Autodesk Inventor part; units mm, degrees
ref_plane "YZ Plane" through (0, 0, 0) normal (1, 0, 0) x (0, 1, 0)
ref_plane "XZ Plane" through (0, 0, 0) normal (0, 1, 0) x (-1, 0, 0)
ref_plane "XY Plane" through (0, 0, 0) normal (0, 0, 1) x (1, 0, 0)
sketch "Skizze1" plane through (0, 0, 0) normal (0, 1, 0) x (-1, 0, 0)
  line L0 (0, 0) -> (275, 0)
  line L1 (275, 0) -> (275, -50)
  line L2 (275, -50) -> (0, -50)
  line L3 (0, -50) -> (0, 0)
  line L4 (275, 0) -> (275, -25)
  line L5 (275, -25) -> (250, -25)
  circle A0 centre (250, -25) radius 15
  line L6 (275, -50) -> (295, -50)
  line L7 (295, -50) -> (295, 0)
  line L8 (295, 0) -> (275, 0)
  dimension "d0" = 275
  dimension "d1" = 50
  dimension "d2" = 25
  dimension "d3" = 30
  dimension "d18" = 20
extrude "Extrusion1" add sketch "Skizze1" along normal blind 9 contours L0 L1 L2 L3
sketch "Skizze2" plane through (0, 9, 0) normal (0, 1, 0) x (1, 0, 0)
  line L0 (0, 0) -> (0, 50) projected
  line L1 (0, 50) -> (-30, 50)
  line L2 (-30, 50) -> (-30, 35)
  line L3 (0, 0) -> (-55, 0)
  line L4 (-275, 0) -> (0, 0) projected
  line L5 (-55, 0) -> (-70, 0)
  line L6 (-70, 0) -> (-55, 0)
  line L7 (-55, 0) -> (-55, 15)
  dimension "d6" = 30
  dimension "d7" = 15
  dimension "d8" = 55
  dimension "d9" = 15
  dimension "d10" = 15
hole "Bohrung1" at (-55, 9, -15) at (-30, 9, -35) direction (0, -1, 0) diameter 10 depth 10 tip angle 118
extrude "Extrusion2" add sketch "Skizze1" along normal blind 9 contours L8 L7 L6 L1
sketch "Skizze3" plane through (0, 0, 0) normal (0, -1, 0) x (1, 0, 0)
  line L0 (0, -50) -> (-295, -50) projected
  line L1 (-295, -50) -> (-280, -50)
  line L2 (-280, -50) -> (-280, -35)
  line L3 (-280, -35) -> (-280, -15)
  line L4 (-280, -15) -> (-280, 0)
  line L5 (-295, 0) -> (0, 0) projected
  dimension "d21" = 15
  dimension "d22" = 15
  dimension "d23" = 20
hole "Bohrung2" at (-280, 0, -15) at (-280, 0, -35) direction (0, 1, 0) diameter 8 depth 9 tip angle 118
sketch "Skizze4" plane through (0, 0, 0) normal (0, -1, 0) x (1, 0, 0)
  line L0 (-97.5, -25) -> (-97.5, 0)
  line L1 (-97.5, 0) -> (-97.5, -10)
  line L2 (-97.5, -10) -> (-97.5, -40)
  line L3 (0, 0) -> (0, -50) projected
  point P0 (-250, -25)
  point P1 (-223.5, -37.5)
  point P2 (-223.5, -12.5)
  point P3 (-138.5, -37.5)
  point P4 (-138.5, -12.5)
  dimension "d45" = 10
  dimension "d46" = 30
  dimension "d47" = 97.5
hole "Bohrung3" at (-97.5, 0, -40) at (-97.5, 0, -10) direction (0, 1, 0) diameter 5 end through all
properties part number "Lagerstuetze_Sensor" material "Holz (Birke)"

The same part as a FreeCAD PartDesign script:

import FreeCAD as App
import Part
import Sketcher
Q = App.Units.Quantity


def add_polygon(sketch, points):
    """Adds a closed chain of lines whose ends are joined by coincident constraints."""
    first, n = sketch.GeometryCount, len(points)
    for a, b in zip(points, points[1:] + points[:1]):
        sketch.addGeometry(Part.LineSegment(App.Vector(*a, 0), App.Vector(*b, 0)), False)
    for i in range(n):
        sketch.addConstraint(Sketcher.Constraint("Coincident", first + i, 2, first + (i + 1) % n, 1))

doc = App.newDocument("Part")
body = doc.addObject("PartDesign::Body", "Body")

# Sketch on XZ plane
sketch1 = body.newObject("Sketcher::SketchObject", "Sketch")
sketch1.AttachmentSupport = (doc.getObject("XZ_Plane"), [""])
sketch1.MapMode = "FlatFace"
add_polygon(sketch1, [(-275, 0), (0, 0), (0, -50), (-275, -50), (-275, -25)])  # lines 0-4
sketch1.addGeometry(Part.Circle(App.Vector(-250, -25, 0), App.Vector(0, 0, 1), 15), False)  # 5
sketch1.addConstraint(Sketcher.Constraint("Horizontal", 0))
sketch1.addConstraint(Sketcher.Constraint("Vertical", 1))
sketch1.addConstraint(Sketcher.Constraint("Horizontal", 2))
sketch1.addConstraint(Sketcher.Constraint("Vertical", 3))
sketch1.addConstraint(Sketcher.Constraint("Vertical", 4))
sketch1.addConstraint(Sketcher.Constraint("Coincident", 0, 2, -1, 1))
sketch1.addConstraint(Sketcher.Constraint("Horizontal", 5, 3, 3, 2))
sketch1.addConstraint(Sketcher.Constraint("Equal", 3, 4))
sketch1.addConstraint(Sketcher.Constraint("Diameter", 5, Q("30 mm")))
sketch1.addConstraint(Sketcher.Constraint("DistanceX", 0, 1, 0, 2, Q("275 mm")))
sketch1.addConstraint(Sketcher.Constraint("DistanceY", 1, 2, 1, 1, Q("50 mm")))
sketch1.addConstraint(Sketcher.Constraint("DistanceX", 2, 2, 5, 3, Q("25 mm")))
pad1 = body.newObject("PartDesign::Pad", "Pad")
pad1.Profile = sketch1
pad1.Length = 9
pad1.Reversed = True

# Sketch on XZ plane
sketch2 = body.newObject("Sketcher::SketchObject", "Sketch001")
sketch2.AttachmentSupport = (doc.getObject("XZ_Plane"), [""])
sketch2.MapMode = "FlatFace"
sketch2.AttachmentOffset = App.Placement(App.Vector(0, 0, -9), App.Rotation())
sketch2.addGeometry(Part.Circle(App.Vector(-55, -15, 0), App.Vector(0, 0, 1), 5), False)
sketch2.addGeometry(Part.Circle(App.Vector(-30, -35, 0), App.Vector(0, 0, 1), 5), False)
sketch2.addConstraint(Sketcher.Constraint("Equal", 0, 1))
sketch2.addConstraint(Sketcher.Constraint("Diameter", 0, Q("10 mm")))
sketch2.addConstraint(Sketcher.Constraint("DistanceX", 0, 3, -1, 1, Q("55 mm")))
sketch2.addConstraint(Sketcher.Constraint("DistanceY", 0, 3, -1, 1, Q("15 mm")))
sketch2.addConstraint(Sketcher.Constraint("DistanceX", 1, 3, -1, 1, Q("30 mm")))
sketch2.addConstraint(Sketcher.Constraint("DistanceY", 1, 3, -1, 1, Q("35 mm")))
doc.recompute()
hole = body.newObject("PartDesign::Hole", "Hole")
hole.Profile = sketch2
hole.ThreadType = "None"
hole.Diameter = 10
hole.DepthType = "Dimension"
hole.Depth = 10
hole.DrillPoint = "Angled"
hole.DrillPointAngle = 118
hole.Reversed = True

# Sketch on XZ plane
sketch3 = body.newObject("Sketcher::SketchObject", "Sketch002")
sketch3.AttachmentSupport = (doc.getObject("XZ_Plane"), [""])
sketch3.MapMode = "FlatFace"
add_polygon(sketch3, [(-295, 0), (-275, 0), (-275, -50), (-295, -50)])  # lines 0-3
sketch3.addConstraint(Sketcher.Constraint("Horizontal", 0))
sketch3.addConstraint(Sketcher.Constraint("Vertical", 1))
sketch3.addConstraint(Sketcher.Constraint("Horizontal", 2))
sketch3.addConstraint(Sketcher.Constraint("Vertical", 3))
sketch3.addConstraint(Sketcher.Constraint("PointOnObject", 0, 2, -1))
sketch3.addConstraint(Sketcher.Constraint("DistanceX", 0, 1, 0, 2, Q("20 mm")))
sketch3.addConstraint(Sketcher.Constraint("DistanceY", 1, 2, 1, 1, Q("50 mm")))
sketch3.addConstraint(Sketcher.Constraint("DistanceX", 0, 2, -1, 1, Q("275 mm")))
pad2 = body.newObject("PartDesign::Pad", "Pad001")
pad2.Profile = sketch3
pad2.Length = 9
pad2.Reversed = True

# Sketch on XZ plane
sketch4 = body.newObject("Sketcher::SketchObject", "Sketch003")
sketch4.AttachmentSupport = (doc.getObject("XZ_Plane"), [""])
sketch4.MapMode = "FlatFace"
sketch4.addGeometry(Part.Circle(App.Vector(-280, -15, 0), App.Vector(0, 0, 1), 4), False)
sketch4.addGeometry(Part.Circle(App.Vector(-280, -35, 0), App.Vector(0, 0, 1), 4), False)
sketch4.addConstraint(Sketcher.Constraint("Equal", 0, 1))
sketch4.addConstraint(Sketcher.Constraint("Vertical", 0, 3, 1, 3))
sketch4.addConstraint(Sketcher.Constraint("Diameter", 0, Q("8 mm")))
sketch4.addConstraint(Sketcher.Constraint("DistanceX", 0, 3, -1, 1, Q("280 mm")))
sketch4.addConstraint(Sketcher.Constraint("DistanceY", 0, 3, -1, 1, Q("15 mm")))
sketch4.addConstraint(Sketcher.Constraint("DistanceY", 1, 3, -1, 1, Q("35 mm")))
doc.recompute()
hole2 = body.newObject("PartDesign::Hole", "Hole001")
hole2.Profile = sketch4
hole2.ThreadType = "None"
hole2.Diameter = 8
hole2.DepthType = "Dimension"
hole2.Depth = 9
hole2.DrillPoint = "Angled"
hole2.DrillPointAngle = 118

# Sketch on XZ plane
sketch5 = body.newObject("Sketcher::SketchObject", "Sketch004")
sketch5.AttachmentSupport = (doc.getObject("XZ_Plane"), [""])
sketch5.MapMode = "FlatFace"
sketch5.addGeometry(Part.Circle(App.Vector(-97.5, -40, 0), App.Vector(0, 0, 1), 2.5), False)
sketch5.addGeometry(Part.Circle(App.Vector(-97.5, -10, 0), App.Vector(0, 0, 1), 2.5), False)
sketch5.addConstraint(Sketcher.Constraint("Equal", 0, 1))
sketch5.addConstraint(Sketcher.Constraint("Vertical", 0, 3, 1, 3))
sketch5.addConstraint(Sketcher.Constraint("Diameter", 0, Q("5 mm")))
sketch5.addConstraint(Sketcher.Constraint("DistanceY", 0, 3, -1, 1, Q("40 mm")))
sketch5.addConstraint(Sketcher.Constraint("DistanceY", 1, 3, -1, 1, Q("10 mm")))
sketch5.addConstraint(Sketcher.Constraint("DistanceX", 0, 3, -1, 1, Q("97.5 mm")))
doc.recompute()
hole3 = body.newObject("PartDesign::Hole", "Hole002")
hole3.Profile = sketch5
hole3.ThreadType = "None"
hole3.Diameter = 5
hole3.DepthType = "ThroughAll"

doc.recompute()
